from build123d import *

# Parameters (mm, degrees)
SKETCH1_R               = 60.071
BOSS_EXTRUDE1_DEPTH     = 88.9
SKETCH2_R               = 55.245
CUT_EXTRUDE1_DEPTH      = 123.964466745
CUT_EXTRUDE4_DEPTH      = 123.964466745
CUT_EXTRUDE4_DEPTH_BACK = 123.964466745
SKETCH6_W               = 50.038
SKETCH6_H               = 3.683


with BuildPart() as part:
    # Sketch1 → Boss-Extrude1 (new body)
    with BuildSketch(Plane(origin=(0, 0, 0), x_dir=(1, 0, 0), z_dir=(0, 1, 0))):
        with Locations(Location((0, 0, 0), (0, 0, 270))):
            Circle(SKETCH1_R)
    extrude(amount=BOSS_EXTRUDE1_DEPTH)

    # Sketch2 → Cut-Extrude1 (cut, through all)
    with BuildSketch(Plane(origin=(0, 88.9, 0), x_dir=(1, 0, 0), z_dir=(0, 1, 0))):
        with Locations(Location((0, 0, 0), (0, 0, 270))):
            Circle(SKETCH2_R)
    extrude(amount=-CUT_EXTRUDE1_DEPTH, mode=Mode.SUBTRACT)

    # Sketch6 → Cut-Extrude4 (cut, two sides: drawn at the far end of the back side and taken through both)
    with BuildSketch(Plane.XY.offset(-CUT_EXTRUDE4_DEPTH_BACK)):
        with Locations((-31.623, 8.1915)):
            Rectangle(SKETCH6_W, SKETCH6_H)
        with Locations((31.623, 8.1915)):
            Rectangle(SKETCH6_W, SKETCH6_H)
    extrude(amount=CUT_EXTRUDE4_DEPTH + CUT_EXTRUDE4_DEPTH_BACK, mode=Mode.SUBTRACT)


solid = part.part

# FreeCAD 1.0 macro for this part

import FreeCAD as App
import Part
import Sketcher
Q = App.Units.Quantity


def add_polygon(sketch, points):
    """Adds a closed chain of lines whose ends are joined by coincident constraints."""
    first, n = sketch.GeometryCount, len(points)
    for a, b in zip(points, points[1:] + points[:1]):
        sketch.addGeometry(Part.LineSegment(App.Vector(*a, 0), App.Vector(*b, 0)), False)
    for i in range(n):
        sketch.addConstraint(Sketcher.Constraint("Coincident", first + i, 2, first + (i + 1) % n, 1))

doc = App.newDocument("Part")
body = doc.addObject("PartDesign::Body", "Body")

# Sketch on XZ plane
sketch1 = body.newObject("Sketcher::SketchObject", "Sketch")
sketch1.AttachmentSupport = (doc.getObject("XZ_Plane"), [""])
sketch1.MapMode = "FlatFace"
sketch1.addGeometry(Part.Circle(App.Vector(0, 0, 0), App.Vector(0, 0, 1), 60), False)
sketch1.addConstraint(Sketcher.Constraint("Coincident", 0, 3, -1, 1))
sketch1.addConstraint(Sketcher.Constraint("Diameter", 0, Q("4.73 in")))
pad1 = body.newObject("PartDesign::Pad", "Pad")
pad1.Profile = sketch1
pad1.Length = Q("3.5 in")
pad1.Reversed = True

# Sketch on XZ plane
sketch2 = body.newObject("Sketcher::SketchObject", "Sketch001")
sketch2.AttachmentSupport = (doc.getObject("XZ_Plane"), [""])
sketch2.MapMode = "FlatFace"
sketch2.AttachmentOffset = App.Placement(App.Vector(0, 0, -3.5 * 25.4), App.Rotation())
sketch2.addGeometry(Part.Circle(App.Vector(0, 0, 0), App.Vector(0, 0, 1), 55), False)
sketch2.addConstraint(Sketcher.Constraint("Coincident", 0, 3, -1, 1))
sketch2.addConstraint(Sketcher.Constraint("Diameter", 0, Q("4.35 in")))
pocket1 = body.newObject("PartDesign::Pocket", "Pocket")
pocket1.Profile = sketch2
pocket1.Type = "ThroughAll"
pocket1.Reversed = True

# Sketch on XY plane
sketch3 = body.newObject("Sketcher::SketchObject", "Sketch002")
sketch3.AttachmentSupport = (doc.getObject("XY_Plane"), [""])
sketch3.MapMode = "FlatFace"
add_polygon(sketch3, [(-56.6, 10), (-56.6, 6.3), (-6.6, 6.3), (-6.6, 10)])  # lines 0-3
add_polygon(sketch3, [(6.6, 10), (6.6, 6.3), (56.6, 6.3), (56.6, 10)])  # lines 4-7
sketch3.addConstraint(Sketcher.Constraint("Vertical", 0))
sketch3.addConstraint(Sketcher.Constraint("Horizontal", 1))
sketch3.addConstraint(Sketcher.Constraint("Vertical", 2))
sketch3.addConstraint(Sketcher.Constraint("Horizontal", 3))
sketch3.addConstraint(Sketcher.Constraint("Vertical", 4))
sketch3.addConstraint(Sketcher.Constraint("Horizontal", 5))
sketch3.addConstraint(Sketcher.Constraint("Vertical", 6))
sketch3.addConstraint(Sketcher.Constraint("Horizontal", 7))
sketch3.addConstraint(Sketcher.Constraint("Symmetric", 1, 2, 4, 2, -2))
sketch3.addConstraint(Sketcher.Constraint("Symmetric", 3, 2, 6, 2, -2))
sketch3.addConstraint(Sketcher.Constraint("DistanceX", 1, 1, 1, 2, Q("1.97 in")))
sketch3.addConstraint(Sketcher.Constraint("DistanceY", 0, 2, 0, 1, Q("0.145 in")))
sketch3.addConstraint(Sketcher.Constraint("DistanceX", 0, 2, -1, 1, Q("2.23 in")))
sketch3.addConstraint(Sketcher.Constraint("DistanceY", -1, 1, 0, 2, Q("0.25 in")))
pocket2 = body.newObject("PartDesign::Pocket", "Pocket001")
pocket2.Profile = sketch3
pocket2.Type = "ThroughAll"
pocket2.Midplane = True

doc.recompute()
